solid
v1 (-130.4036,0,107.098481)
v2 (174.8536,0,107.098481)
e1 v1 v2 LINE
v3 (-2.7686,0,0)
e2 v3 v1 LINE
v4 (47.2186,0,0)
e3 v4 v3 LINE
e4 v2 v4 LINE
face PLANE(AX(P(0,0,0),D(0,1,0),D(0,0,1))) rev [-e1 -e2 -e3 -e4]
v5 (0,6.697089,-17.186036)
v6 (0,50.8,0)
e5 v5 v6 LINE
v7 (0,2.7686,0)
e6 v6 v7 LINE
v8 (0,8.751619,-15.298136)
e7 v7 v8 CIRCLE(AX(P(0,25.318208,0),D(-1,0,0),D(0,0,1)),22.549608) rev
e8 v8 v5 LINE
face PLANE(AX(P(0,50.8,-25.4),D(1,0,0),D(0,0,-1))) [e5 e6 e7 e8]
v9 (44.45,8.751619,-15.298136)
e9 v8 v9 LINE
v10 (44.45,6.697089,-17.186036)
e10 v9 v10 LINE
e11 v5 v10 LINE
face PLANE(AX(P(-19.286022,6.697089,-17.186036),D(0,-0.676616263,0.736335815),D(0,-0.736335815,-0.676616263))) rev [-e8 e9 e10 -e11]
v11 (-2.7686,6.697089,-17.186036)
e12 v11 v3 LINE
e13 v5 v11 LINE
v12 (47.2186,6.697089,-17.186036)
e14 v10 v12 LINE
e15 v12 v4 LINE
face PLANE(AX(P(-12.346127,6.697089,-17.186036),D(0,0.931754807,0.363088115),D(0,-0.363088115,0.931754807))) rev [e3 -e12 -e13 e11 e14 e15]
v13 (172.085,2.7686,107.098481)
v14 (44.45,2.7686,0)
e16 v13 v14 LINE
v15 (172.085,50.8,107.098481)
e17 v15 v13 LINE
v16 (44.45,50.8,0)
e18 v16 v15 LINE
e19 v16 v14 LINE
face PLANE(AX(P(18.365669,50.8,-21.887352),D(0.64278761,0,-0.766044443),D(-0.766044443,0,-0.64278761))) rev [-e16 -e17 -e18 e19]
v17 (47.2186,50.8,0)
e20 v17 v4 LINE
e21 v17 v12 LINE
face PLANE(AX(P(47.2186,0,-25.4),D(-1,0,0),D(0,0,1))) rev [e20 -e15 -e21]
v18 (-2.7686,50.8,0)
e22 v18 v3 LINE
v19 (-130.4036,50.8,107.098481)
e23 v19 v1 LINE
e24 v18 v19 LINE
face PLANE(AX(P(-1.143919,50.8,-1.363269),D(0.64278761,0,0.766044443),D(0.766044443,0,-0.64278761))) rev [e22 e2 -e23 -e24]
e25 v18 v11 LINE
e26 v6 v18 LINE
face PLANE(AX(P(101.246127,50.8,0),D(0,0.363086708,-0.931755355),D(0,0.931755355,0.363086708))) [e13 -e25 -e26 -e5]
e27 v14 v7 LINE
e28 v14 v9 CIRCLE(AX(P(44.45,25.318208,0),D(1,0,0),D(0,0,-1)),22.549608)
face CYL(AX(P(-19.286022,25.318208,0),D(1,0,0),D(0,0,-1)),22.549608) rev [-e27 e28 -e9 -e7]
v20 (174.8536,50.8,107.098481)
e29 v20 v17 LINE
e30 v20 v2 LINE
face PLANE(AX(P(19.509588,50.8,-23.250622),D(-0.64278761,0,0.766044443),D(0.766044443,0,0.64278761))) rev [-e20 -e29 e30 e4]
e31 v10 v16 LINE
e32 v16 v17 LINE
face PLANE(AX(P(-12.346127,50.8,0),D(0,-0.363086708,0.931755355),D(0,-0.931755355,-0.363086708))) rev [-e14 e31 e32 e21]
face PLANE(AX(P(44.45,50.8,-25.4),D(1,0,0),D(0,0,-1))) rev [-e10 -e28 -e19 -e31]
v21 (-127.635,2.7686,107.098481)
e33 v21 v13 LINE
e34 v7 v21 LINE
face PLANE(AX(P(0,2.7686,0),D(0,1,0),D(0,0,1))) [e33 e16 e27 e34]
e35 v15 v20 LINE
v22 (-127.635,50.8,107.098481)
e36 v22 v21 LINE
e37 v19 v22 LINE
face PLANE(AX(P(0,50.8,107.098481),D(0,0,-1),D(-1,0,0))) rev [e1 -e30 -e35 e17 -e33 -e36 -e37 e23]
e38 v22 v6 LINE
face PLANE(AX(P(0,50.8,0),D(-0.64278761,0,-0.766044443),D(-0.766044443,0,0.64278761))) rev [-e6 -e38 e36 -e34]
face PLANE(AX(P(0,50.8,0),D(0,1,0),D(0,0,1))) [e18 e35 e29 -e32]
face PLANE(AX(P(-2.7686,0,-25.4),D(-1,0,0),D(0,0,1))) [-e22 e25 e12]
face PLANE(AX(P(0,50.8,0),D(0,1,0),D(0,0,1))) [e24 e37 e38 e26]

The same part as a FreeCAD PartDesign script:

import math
import FreeCAD as App
import Part
import Sketcher
from FreeCAD import Vector
Q = App.Units.Quantity

doc = App.newDocument("Part")
params = doc.addObject("Spreadsheet::Sheet", "Params")
for row, (alias, value) in enumerate([
    ("sketch1_width", "11.8 in"),
    ("sketch1_width2", "1.75 in"),
    ("pad1_length", "0.109 in"),
    ("sketch2_width", "0.109 in"),
    ("pad2_length", "2 in"),
    ("sketch3_width", "0.109 in"),
    ("pad3_length", "2 in"),
    ("sketch4_height", "2 in"),
    ("sketch4_width", "0.109 in"),
    ("pad4_length", "1 in"),
    ("sketch5_width", "2 in"),
    ("sketch5_height", "1 in"),
    ("pocket1_length", "1.859 in"),
    ("sketch6_width", "0.109 in"),
    ("pad5_length", "1.75 in"),
], start=1):
    params.set(f"A{row}", alias)
    params.set(f"B{row}", "=" + value)
    params.setAlias(f"B{row}", alias)

body = doc.addObject("PartDesign::Body", "Body")

sketch1 = body.newObject("Sketcher::SketchObject", "Sketch")
sketch1.AttachmentSupport = (doc.getObject("XZ_Plane"), [""])
sketch1.MapMode = "FlatFace"
sketch1.addGeometry(Part.LineSegment(Vector(44, 0, 0), Vector(0, 0, 0)), False)
sketch1.addGeometry(Part.LineSegment(Vector(0, 0, 0), Vector(-128, 107, 0)), False)
sketch1.addGeometry(Part.LineSegment(Vector(-128, 107, 0), Vector(172, 107, 0)), False)
sketch1.addGeometry(Part.LineSegment(Vector(172, 107, 0), Vector(44, 0, 0)), False)
sketch1.addConstraint(Sketcher.Constraint("Coincident", 0, 2, 1, 1))
sketch1.addConstraint(Sketcher.Constraint("Coincident", 1, 2, 2, 1))
sketch1.addConstraint(Sketcher.Constraint("Coincident", 2, 2, 3, 1))
sketch1.addConstraint(Sketcher.Constraint("Coincident", 3, 2, 0, 1))
sketch1.addConstraint(Sketcher.Constraint("Horizontal", 0))
sketch1.addConstraint(Sketcher.Constraint("Horizontal", 2))
sketch1.addConstraint(Sketcher.Constraint("Coincident", 0, 2, -1, 1))
sketch1.addConstraint(Sketcher.Constraint("Equal", 1, 3))
sketch1.addConstraint(Sketcher.Constraint("DistanceX", 2, 1, 2, 2, Q("11.8 in")))
sketch1.addConstraint(Sketcher.Constraint("Angle", 1, Q("140 deg")))
sketch1.addConstraint(Sketcher.Constraint("DistanceX", 0, 2, 0, 1, Q("1.75 in")))
sketch1.setExpression("Constraints[8]", "Params.sketch1_width")
sketch1.setExpression("Constraints[10]", "Params.sketch1_width2")
pad1 = body.newObject("PartDesign::Pad", "Pad")
pad1.Profile = sketch1
pad1.setExpression("Length", "Params.pad1_length")
pad1.Reversed = True
body2 = doc.addObject("PartDesign::Body", "Body001")

sketch2 = body2.newObject("Sketcher::SketchObject", "Sketch001")
sketch2.AttachmentSupport = (doc.getObject("XZ_Plane001"), [""])
sketch2.MapMode = "FlatFace"
sketch2.addGeometry(Part.LineSegment(Vector(-127.6, 107.1, 0), Vector(0, 0, 0)), False)
sketch2.addGeometry(Part.LineSegment(Vector(0, 0, 0), Vector(-2.8, 0, 0)), False)
sketch2.addGeometry(Part.LineSegment(Vector(-2.8, 0, 0), Vector(-130.4, 107.1, 0)), False)
sketch2.addGeometry(Part.LineSegment(Vector(-130.4, 107.1, 0), Vector(-127.6, 107.1, 0)), False)
sketch2.addConstraint(Sketcher.Constraint("Coincident", 0, 2, 1, 1))
sketch2.addConstraint(Sketcher.Constraint("Coincident", 1, 2, 2, 1))
sketch2.addConstraint(Sketcher.Constraint("Coincident", 2, 2, 3, 1))
sketch2.addConstraint(Sketcher.Constraint("Coincident", 3, 2, 0, 1))
sketch2.addConstraint(Sketcher.Constraint("Horizontal", 1))
sketch2.addConstraint(Sketcher.Constraint("Horizontal", 3))
sketch2.addConstraint(Sketcher.Constraint("Coincident", 0, 2, -1, 1))
sketch2.addConstraint(Sketcher.Constraint("Parallel", 0, 2))
sketch2.addConstraint(Sketcher.Constraint("Angle", 0, Q("-40 deg")))
sketch2.addConstraint(Sketcher.Constraint("DistanceX", 1, 2, 1, 1, Q("0.109 in")))
sketch2.addConstraint(Sketcher.Constraint("DistanceX", 2, 2, -1, 1, Q("5.134 in")))
sketch2.setExpression("Constraints[9]", "Params.sketch2_width")
pad2 = body2.newObject("PartDesign::Pad", "Pad001")
pad2.Profile = sketch2
pad2.setExpression("Length", "Params.pad2_length")
pad2.Reversed = True
body3 = doc.addObject("PartDesign::Body", "Body002")

sketch3 = body3.newObject("Sketcher::SketchObject", "Sketch002")
sketch3.AttachmentSupport = (doc.getObject("XZ_Plane002"), [""])
sketch3.MapMode = "FlatFace"
sketch3.addGeometry(Part.LineSegment(Vector(47.2, 0, 0), Vector(44.5, 0, 0)), False)
sketch3.addGeometry(Part.LineSegment(Vector(44.5, 0, 0), Vector(172.1, 107.1, 0)), False)
sketch3.addGeometry(Part.LineSegment(Vector(172.1, 107.1, 0), Vector(174.9, 107.1, 0)), False)
sketch3.addGeometry(Part.LineSegment(Vector(174.9, 107.1, 0), Vector(47.2, 0, 0)), False)
sketch3.addConstraint(Sketcher.Constraint("Coincident", 0, 2, 1, 1))
sketch3.addConstraint(Sketcher.Constraint("Coincident", 1, 2, 2, 1))
sketch3.addConstraint(Sketcher.Constraint("Coincident", 2, 2, 3, 1))
sketch3.addConstraint(Sketcher.Constraint("Coincident", 3, 2, 0, 1))
sketch3.addConstraint(Sketcher.Constraint("Horizontal", 0))
sketch3.addConstraint(Sketcher.Constraint("Horizontal", 2))
sketch3.addConstraint(Sketcher.Constraint("PointOnObject", 0, 2, -1))
sketch3.addConstraint(Sketcher.Constraint("Parallel", 1, 3))
sketch3.addConstraint(Sketcher.Constraint("Angle", 1, Q("40 deg")))
sketch3.addConstraint(Sketcher.Constraint("DistanceX", 0, 2, 0, 1, Q("0.109 in")))
sketch3.addConstraint(Sketcher.Constraint("DistanceX", -1, 1, 0, 2, Q("1.75 in")))
sketch3.addConstraint(Sketcher.Constraint("DistanceX", -1, 1, 1, 2, Q("6.775 in")))
sketch3.setExpression("Constraints[9]", "Params.sketch3_width")
pad3 = body3.newObject("PartDesign::Pad", "Pad002")
pad3.Profile = sketch3
pad3.setExpression("Length", "Params.pad3_length")
pad3.Reversed = True
doc.recompute()

boolean = body.newObject("PartDesign::Boolean", "Boolean")
boolean.Type = "Fuse"
boolean.addObjects([body3])

sketch4 = body.newObject("Sketcher::SketchObject", "Sketch003")
sketch4.AttachmentSupport = (doc.getObject("XY_Plane"), [""])
sketch4.MapMode = "FlatFace"
sketch4.addGeometry(Part.LineSegment(Vector(47.2, 50.8, 0), Vector(47.2, 0, 0)), False)
sketch4.addGeometry(Part.LineSegment(Vector(47.2, 0, 0), Vector(44.5, 0, 0)), False)
sketch4.addGeometry(Part.LineSegment(Vector(44.5, 0, 0), Vector(44.5, 50.8, 0)), False)
sketch4.addGeometry(Part.LineSegment(Vector(44.5, 50.8, 0), Vector(47.2, 50.8, 0)), False)
sketch4.addConstraint(Sketcher.Constraint("Coincident", 0, 2, 1, 1))
sketch4.addConstraint(Sketcher.Constraint("Coincident", 1, 2, 2, 1))
sketch4.addConstraint(Sketcher.Constraint("Coincident", 2, 2, 3, 1))
sketch4.addConstraint(Sketcher.Constraint("Coincident", 3, 2, 0, 1))
sketch4.addConstraint(Sketcher.Constraint("Vertical", 0))
sketch4.addConstraint(Sketcher.Constraint("Horizontal", 1))
sketch4.addConstraint(Sketcher.Constraint("Vertical", 2))
sketch4.addConstraint(Sketcher.Constraint("Horizontal", 3))
sketch4.addConstraint(Sketcher.Constraint("PointOnObject", 0, 2, -1))
sketch4.addConstraint(Sketcher.Constraint("DistanceY", 0, 2, 0, 1, Q("2 in")))
sketch4.addConstraint(Sketcher.Constraint("DistanceX", 1, 2, 1, 1, Q("0.109 in")))
sketch4.addConstraint(Sketcher.Constraint("DistanceX", -1, 1, 1, 2, Q("1.75 in")))
sketch4.setExpression("Constraints[9]", "Params.sketch4_height")
sketch4.setExpression("Constraints[10]", "Params.sketch4_width")
pad4 = body.newObject("PartDesign::Pad", "Pad003")
pad4.Profile = sketch4
pad4.setExpression("Length", "Params.pad4_length")
pad4.Reversed = True

sketch5 = body.newObject("Sketcher::SketchObject", "Sketch004")
sketch5.AttachmentSupport = (doc.getObject("YZ_Plane"), [""])
sketch5.MapMode = "FlatFace"
sketch5.AttachmentOffset = App.Placement(Vector(0, 0, 1.859 * 25.4), App.Rotation())
sketch5.addGeometry(Part.LineSegment(Vector(6.697089, -17.186036, 0), Vector(0, 0, 0)), False)
sketch5.addGeometry(Part.LineSegment(Vector(0, 0, 0), Vector(0, -25.4, 0)), False)
sketch5.addGeometry(Part.LineSegment(Vector(0, -25.4, 0), Vector(50.8, -25.4, 0)), False)
sketch5.addGeometry(Part.LineSegment(Vector(50.8, -25.4, 0), Vector(50.8, 0, 0)), False)
sketch5.addGeometry(Part.LineSegment(Vector(50.8, 0, 0), Vector(6.697089, -17.186036, 0)), False)
sketch5.addConstraint(Sketcher.Constraint("Coincident", 0, 2, 1, 1))
sketch5.addConstraint(Sketcher.Constraint("Coincident", 1, 2, 2, 1))
sketch5.addConstraint(Sketcher.Constraint("Coincident", 2, 2, 3, 1))
sketch5.addConstraint(Sketcher.Constraint("Coincident", 3, 2, 4, 1))
sketch5.addConstraint(Sketcher.Constraint("Coincident", 4, 2, 0, 1))
sketch5.addConstraint(Sketcher.Constraint("Vertical", 1))
sketch5.addConstraint(Sketcher.Constraint("Horizontal", 2))
sketch5.addConstraint(Sketcher.Constraint("Vertical", 3))
sketch5.addConstraint(Sketcher.Constraint("Coincident", 0, 2, -1, 1))
sketch5.addConstraint(Sketcher.Constraint("PointOnObject", 3, 2, -1))
sketch5.addConstraint(Sketcher.Constraint("DistanceX", 2, 1, 2, 2, Q("2 in")))
sketch5.addConstraint(Sketcher.Constraint("DistanceY", 1, 2, 1, 1, Q("1 in")))
sketch5.addConstraint(Sketcher.Constraint("DistanceX", -1, 1, 4, 2, Q("6.697089 mm")))
sketch5.addConstraint(Sketcher.Constraint("Distance", 0, Q("18.444805 mm")))
sketch5.setExpression("Constraints[10]", "Params.sketch5_width")
sketch5.setExpression("Constraints[11]", "Params.sketch5_height")
pocket1 = body.newObject("PartDesign::Pocket", "Pocket")
pocket1.Profile = sketch5
pocket1.setExpression("Length", "Params.pocket1_length")
doc.recompute()

boolean2 = body.newObject("PartDesign::Boolean", "Boolean001")
boolean2.Type = "Fuse"
boolean2.addObjects([body2])

sketch6 = body.newObject("Sketcher::SketchObject", "Sketch005")
sketch6.AttachmentSupport = (doc.getObject("YZ_Plane"), [""])
sketch6.MapMode = "FlatFace"
sketch6.AttachmentOffset = App.Placement(Vector(0, 0, 1.75 * 25.4), App.Rotation())
sketch6.addGeometry(Part.LineSegment(Vector(8.8, -15.3, 0), Vector(6.7, -17.2, 0)), False)
sketch6.addGeometry(Part.LineSegment(Vector(6.7, -17.2, 0), Vector(0, 0, 0)), False)
sketch6.addGeometry(Part.LineSegment(Vector(0, 0, 0), Vector(2.8, 0, 0)), False)
sketch6.addGeometry(Part.ArcOfCircle(Part.Circle(Vector(25.3, 0, 0), Vector(0, 0, 1), 22.5), math.radians(180), math.radians(223)), False)
sketch6.addConstraint(Sketcher.Constraint("Coincident", 0, 2, 1, 1))
sketch6.addConstraint(Sketcher.Constraint("Coincident", 1, 2, 2, 1))
sketch6.addConstraint(Sketcher.Constraint("Coincident", 2, 2, 3, 1))
sketch6.addConstraint(Sketcher.Constraint("Coincident", 3, 2, 0, 1))
sketch6.addConstraint(Sketcher.Constraint("Horizontal", 2))
sketch6.addConstraint(Sketcher.Constraint("Coincident", 1, 2, -1, 1))
sketch6.addConstraint(Sketcher.Constraint("PointOnObject", 3, 3, -1))
sketch6.addConstraint(Sketcher.Constraint("DistanceX", 2, 1, 2, 2, Q("0.109 in")))
sketch6.addConstraint(Sketcher.Constraint("Radius", 3, Q("22.549608 mm")))
sketch6.addConstraint(Sketcher.Constraint("DistanceY", 0, 2, 3, 2, Q("1.8879 mm")))
sketch6.addConstraint(Sketcher.Constraint("DistanceX", -1, 1, 0, 2, Q("6.697089 mm")))
sketch6.addConstraint(Sketcher.Constraint("DistanceX", -1, 1, 3, 2, Q("8.751619 mm")))
sketch6.setExpression("Constraints[7]", "Params.sketch6_width")
pad5 = body.newObject("PartDesign::Pad", "Pad004")
pad5.Profile = sketch6
pad5.setExpression("Length", "Params.pad5_length")
pad5.Reversed = True
doc.recompute()

datumplane = body.newObject("PartDesign::Plane", "DatumPlane")
datumplane.AttachmentSupport = (doc.getObject("YZ_Plane"), [""])
datumplane.MapMode = "FlatFace"
datumplane.AttachmentOffset = App.Placement(Vector(0, 0, 0.875 * 25.4), App.Rotation())
mirrored = body.newObject("PartDesign::Mirrored", "Mirrored")
mirrored.Originals = [pad4]
mirrored.MirrorPlane = (datumplane, [""])
body.Tip = mirrored
doc.recompute()

datumplane2 = body.newObject("PartDesign::Plane", "DatumPlane001")
datumplane2.AttachmentSupport = (doc.getObject("YZ_Plane"), [""])
datumplane2.MapMode = "FlatFace"
datumplane2.AttachmentOffset = App.Placement(Vector(0, 0, 0.875 * 25.4), App.Rotation())
mirrored2 = body.newObject("PartDesign::Mirrored", "Mirrored001")
mirrored2.Originals = [pocket1]
mirrored2.MirrorPlane = (datumplane2, [""])
body.Tip = mirrored2

doc.recompute()
